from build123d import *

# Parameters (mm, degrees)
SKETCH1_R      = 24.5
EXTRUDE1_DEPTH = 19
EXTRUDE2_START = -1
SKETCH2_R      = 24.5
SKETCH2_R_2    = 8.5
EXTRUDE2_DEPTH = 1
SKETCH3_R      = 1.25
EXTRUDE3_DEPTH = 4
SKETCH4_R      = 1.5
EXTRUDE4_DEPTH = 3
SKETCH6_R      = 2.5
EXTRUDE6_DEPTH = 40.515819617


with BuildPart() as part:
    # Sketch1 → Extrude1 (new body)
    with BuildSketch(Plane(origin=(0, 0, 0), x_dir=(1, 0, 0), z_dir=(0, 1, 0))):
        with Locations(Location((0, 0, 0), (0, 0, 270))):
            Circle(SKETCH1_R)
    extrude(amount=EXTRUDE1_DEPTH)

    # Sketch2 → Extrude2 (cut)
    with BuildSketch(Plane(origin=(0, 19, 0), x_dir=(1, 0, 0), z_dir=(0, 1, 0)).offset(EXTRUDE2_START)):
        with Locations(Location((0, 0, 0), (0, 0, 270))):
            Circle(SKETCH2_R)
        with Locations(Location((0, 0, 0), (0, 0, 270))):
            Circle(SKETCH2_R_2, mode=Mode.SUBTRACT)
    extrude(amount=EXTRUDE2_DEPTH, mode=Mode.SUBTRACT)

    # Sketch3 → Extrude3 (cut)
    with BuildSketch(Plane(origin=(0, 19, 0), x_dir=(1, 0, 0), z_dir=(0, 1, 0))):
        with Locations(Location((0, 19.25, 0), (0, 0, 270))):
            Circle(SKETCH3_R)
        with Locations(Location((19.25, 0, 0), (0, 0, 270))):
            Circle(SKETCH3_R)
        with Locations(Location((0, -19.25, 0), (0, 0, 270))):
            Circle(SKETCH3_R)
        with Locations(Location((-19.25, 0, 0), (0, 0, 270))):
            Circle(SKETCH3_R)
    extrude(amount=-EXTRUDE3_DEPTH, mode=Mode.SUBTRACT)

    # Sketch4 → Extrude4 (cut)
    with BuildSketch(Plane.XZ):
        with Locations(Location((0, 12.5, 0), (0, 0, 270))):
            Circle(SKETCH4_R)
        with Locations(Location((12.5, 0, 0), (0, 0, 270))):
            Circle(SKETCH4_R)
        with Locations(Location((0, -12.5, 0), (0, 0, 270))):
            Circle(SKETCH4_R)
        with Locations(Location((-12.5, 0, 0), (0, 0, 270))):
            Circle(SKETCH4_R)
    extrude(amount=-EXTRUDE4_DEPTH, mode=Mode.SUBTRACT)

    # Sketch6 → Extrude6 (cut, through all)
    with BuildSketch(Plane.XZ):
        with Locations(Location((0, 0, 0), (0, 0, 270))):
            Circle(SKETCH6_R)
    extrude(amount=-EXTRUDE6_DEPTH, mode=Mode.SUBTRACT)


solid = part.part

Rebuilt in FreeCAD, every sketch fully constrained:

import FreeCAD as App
import Part
import Sketcher

V = App.Vector

doc = App.newDocument("Part")
body = doc.addObject("PartDesign::Body", "Body")

sketch1 = body.newObject("Sketcher::SketchObject", "Sketch")
sketch1.AttachmentSupport = (doc.getObject("XZ_Plane"), [""])
sketch1.MapMode = "FlatFace"
sketch1.addGeometry(Part.Circle(V(0, 0, 0), V(0, 0, 1), 24.5), False)
sketch1.addConstraint(Sketcher.Constraint("Coincident", 0, 3, -1, 1))
sketch1.addConstraint(Sketcher.Constraint("Diameter", 0, 49.0))
pad1 = body.newObject("PartDesign::Pad", "Pad")
pad1.Profile = sketch1
pad1.Length = 19
pad1.Reversed = True

sketch2 = body.newObject("Sketcher::SketchObject", "Sketch001")
sketch2.AttachmentSupport = (doc.getObject("XZ_Plane"), [""])
sketch2.MapMode = "FlatFace"
sketch2.AttachmentOffset = App.Placement(V(0, 0, -18), App.Rotation())
sketch2.addGeometry(Part.Circle(V(0, 0, 0), V(0, 0, 1), 24.5), False)
sketch2.addGeometry(Part.Circle(V(0, 0, 0), V(0, 0, 1), 8.5), False)
sketch2.addConstraint(Sketcher.Constraint("Coincident", 0, 3, -1, 1))
sketch2.addConstraint(Sketcher.Constraint("Coincident", 1, 3, -1, 1))
sketch2.addConstraint(Sketcher.Constraint("Diameter", 0, 49.0))
sketch2.addConstraint(Sketcher.Constraint("Diameter", 1, 17.0))
pocket1 = body.newObject("PartDesign::Pocket", "Pocket")
pocket1.Profile = sketch2
pocket1.Length = 1

sketch3 = body.newObject("Sketcher::SketchObject", "Sketch002")
sketch3.AttachmentSupport = (doc.getObject("XZ_Plane"), [""])
sketch3.MapMode = "FlatFace"
sketch3.AttachmentOffset = App.Placement(V(0, 0, -19), App.Rotation())
sketch3.addGeometry(Part.Circle(V(0, -19.25, 0), V(0, 0, 1), 1.25), False)
sketch3.addGeometry(Part.Circle(V(19.25, 0, 0), V(0, 0, 1), 1.25), False)
sketch3.addGeometry(Part.Circle(V(0, 19.25, 0), V(0, 0, 1), 1.25), False)
sketch3.addGeometry(Part.Circle(V(-19.25, 0, 0), V(0, 0, 1), 1.25), False)
sketch3.addConstraint(Sketcher.Constraint("Equal", 0, 1))
sketch3.addConstraint(Sketcher.Constraint("Equal", 1, 2))
sketch3.addConstraint(Sketcher.Constraint("Equal", 2, 3))
sketch3.addConstraint(Sketcher.Constraint("Symmetric", 0, 3, 2, 3, -1, 1))
sketch3.addConstraint(Sketcher.Constraint("Symmetric", 1, 3, 3, 3, -1, 1))
sketch3.addConstraint(Sketcher.Constraint("PointOnObject", 0, 3, -2))
sketch3.addConstraint(Sketcher.Constraint("PointOnObject", 1, 3, -1))
sketch3.addConstraint(Sketcher.Constraint("Diameter", 0, 2.5))
sketch3.addConstraint(Sketcher.Constraint("DistanceY", 0, 3, 2, 3, 38.5))
sketch3.addConstraint(Sketcher.Constraint("DistanceX", 3, 3, 1, 3, 38.5))
pocket2 = body.newObject("PartDesign::Pocket", "Pocket001")
pocket2.Profile = sketch3
pocket2.Length = 4
pocket2.Reversed = True

sketch4 = body.newObject("Sketcher::SketchObject", "Sketch003")
sketch4.AttachmentSupport = (doc.getObject("XZ_Plane"), [""])
sketch4.MapMode = "FlatFace"
sketch4.addGeometry(Part.Circle(V(0, 12.5, 0), V(0, 0, 1), 1.5), False)
sketch4.addGeometry(Part.Circle(V(12.5, 0, 0), V(0, 0, 1), 1.5), False)
sketch4.addGeometry(Part.Circle(V(0, -12.5, 0), V(0, 0, 1), 1.5), False)
sketch4.addGeometry(Part.Circle(V(-12.5, 0, 0), V(0, 0, 1), 1.5), False)
sketch4.addConstraint(Sketcher.Constraint("Equal", 0, 1))
sketch4.addConstraint(Sketcher.Constraint("Equal", 1, 2))
sketch4.addConstraint(Sketcher.Constraint("Equal", 2, 3))
sketch4.addConstraint(Sketcher.Constraint("Symmetric", 0, 3, 2, 3, -1, 1))
sketch4.addConstraint(Sketcher.Constraint("Symmetric", 1, 3, 3, 3, -1, 1))
sketch4.addConstraint(Sketcher.Constraint("PointOnObject", 0, 3, -2))
sketch4.addConstraint(Sketcher.Constraint("PointOnObject", 1, 3, -1))
sketch4.addConstraint(Sketcher.Constraint("Diameter", 0, 3.0))
sketch4.addConstraint(Sketcher.Constraint("DistanceY", 2, 3, 0, 3, 25.0))
sketch4.addConstraint(Sketcher.Constraint("DistanceX", 3, 3, 1, 3, 25.0))
pocket3 = body.newObject("PartDesign::Pocket", "Pocket002")
pocket3.Profile = sketch4
pocket3.Length = 3

sketch5 = body.newObject("Sketcher::SketchObject", "Sketch004")
sketch5.AttachmentSupport = (doc.getObject("XZ_Plane"), [""])
sketch5.MapMode = "FlatFace"
sketch5.addGeometry(Part.Circle(V(0, 0, 0), V(0, 0, 1), 2.5), False)
sketch5.addConstraint(Sketcher.Constraint("Coincident", 0, 3, -1, 1))
sketch5.addConstraint(Sketcher.Constraint("Diameter", 0, 5.0))
pocket4 = body.newObject("PartDesign::Pocket", "Pocket003")
pocket4.Profile = sketch5
pocket4.Type = "ThroughAll"

doc.recompute()
